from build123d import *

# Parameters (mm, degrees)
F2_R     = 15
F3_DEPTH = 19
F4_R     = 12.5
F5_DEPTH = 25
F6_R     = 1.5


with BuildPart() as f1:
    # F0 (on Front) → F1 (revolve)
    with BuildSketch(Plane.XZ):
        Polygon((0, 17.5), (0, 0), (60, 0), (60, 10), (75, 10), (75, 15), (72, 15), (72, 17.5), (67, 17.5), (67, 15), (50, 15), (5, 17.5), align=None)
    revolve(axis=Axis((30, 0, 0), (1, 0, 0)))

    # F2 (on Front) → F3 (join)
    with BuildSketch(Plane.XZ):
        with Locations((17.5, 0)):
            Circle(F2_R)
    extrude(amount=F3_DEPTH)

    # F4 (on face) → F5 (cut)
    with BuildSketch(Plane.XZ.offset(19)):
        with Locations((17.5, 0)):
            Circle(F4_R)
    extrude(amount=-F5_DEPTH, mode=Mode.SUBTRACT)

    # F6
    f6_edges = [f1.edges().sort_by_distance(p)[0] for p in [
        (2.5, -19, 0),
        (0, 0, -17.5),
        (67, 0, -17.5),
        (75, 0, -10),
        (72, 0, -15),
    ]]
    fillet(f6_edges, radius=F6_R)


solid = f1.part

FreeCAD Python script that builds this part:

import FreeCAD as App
import Part
import Sketcher

V = App.Vector
Q = App.Units.Quantity


def edges_at(feature, points):
    """Names of the edges that pass closest to the given points."""
    edges = feature.Shape.Edges
    near = lambda p: min(range(len(edges)), key=lambda i: edges[i].distToShape(Part.Vertex(*p))[0])
    return sorted({f"Edge{near(p) + 1}" for p in points})


def add_polygon(sketch, points):
    """Adds a closed chain of lines whose ends are joined by coincident constraints."""
    first, n = sketch.GeometryCount, len(points)
    for a, b in zip(points, points[1:] + points[:1]):
        sketch.addGeometry(Part.LineSegment(App.Vector(*a, 0), App.Vector(*b, 0)), False)
    for i in range(n):
        sketch.addConstraint(Sketcher.Constraint("Coincident", first + i, 2, first + (i + 1) % n, 1))

doc = App.newDocument("Part")
params = doc.addObject("Spreadsheet::Sheet", "Params")
for row, (alias, value) in enumerate([
    ("sketch1_width", "60 mm"),
    ("sketch1_width2", "15 mm"),
    ("sketch1_width3", "3 mm"),
    ("sketch1_width4", "5 mm"),
    ("sketch1_width5", "17 mm"),
    ("revolution_angle", "360 deg"),
    ("sketch2_diameter", "30 mm"),
    ("pad1_length", "19 mm"),
    ("sketch3_diameter", "25 mm"),
    ("pocket1_length", "25 mm"),
    ("fillet_radius", "1.5 mm"),
], start=1):
    params.set(f"A{row}", alias)
    params.set(f"B{row}", "=" + value)
    params.setAlias(f"B{row}", alias)

body = doc.addObject("PartDesign::Body", "Body")

# Sketch on XZ plane
sketch1 = doc.addObject("Sketcher::SketchObject", "Sketch")
body.addObject(sketch1)
sketch1.AttachmentSupport = (doc.XZ_Plane, [""])
sketch1.MapMode = "FlatFace"
add_polygon(sketch1, [(0, 17.5), (0, 0), (60, 0), (60, 10), (75, 10), (75, 15), (72, 15), (72, 17.5), (67, 17.5), (67, 15), (50, 15), (5, 17.5)])  # lines 0-11
sketch1.addConstraint([
    Sketcher.Constraint("Vertical", 0),
    Sketcher.Constraint("Horizontal", 1),
    Sketcher.Constraint("Vertical", 2),
    Sketcher.Constraint("Horizontal", 3),
    Sketcher.Constraint("Vertical", 4),
    Sketcher.Constraint("Horizontal", 5),
    Sketcher.Constraint("Vertical", 6),
    Sketcher.Constraint("Horizontal", 7),
    Sketcher.Constraint("Vertical", 8),
    Sketcher.Constraint("Horizontal", 9),
    Sketcher.Constraint("Horizontal", 11),
    Sketcher.Constraint("Coincident", 0, 2, -1, 1),
    Sketcher.Constraint("Horizontal", 5, 2, 8, 2),
    Sketcher.Constraint("Horizontal", 7, 2, 10, 2),
    Sketcher.Constraint("Equal", 7, 11),
    Sketcher.Constraint("Equal", 11, 4),
    Sketcher.Constraint("DistanceX", 1, 1, 1, 2, Q("60 mm")),
    Sketcher.Constraint("DistanceX", 3, 1, 3, 2, Q("15 mm")),
    Sketcher.Constraint("DistanceX", 5, 2, 5, 1, Q("3 mm")),
    Sketcher.Constraint("DistanceX", 7, 2, 7, 1, Q("5 mm")),
    Sketcher.Constraint("DistanceX", 9, 2, 9, 1, Q("17 mm")),
    Sketcher.Constraint("DistanceY", 2, 1, 2, 2, Q("10 mm")),
    Sketcher.Constraint("DistanceY", 0, 2, 0, 1, Q("17.5 mm")),
])
sketch1.setExpression("Constraints[28]", "Params.sketch1_width")
sketch1.setExpression("Constraints[29]", "Params.sketch1_width2")
sketch1.setExpression("Constraints[30]", "Params.sketch1_width3")
sketch1.setExpression("Constraints[31]", "Params.sketch1_width4")
sketch1.setExpression("Constraints[32]", "Params.sketch1_width5")
revolution = doc.addObject("PartDesign::Revolution", "Revolution")
body.addObject(revolution)
revolution.Profile = sketch1
revolution.ReferenceAxis = (sketch1, ["H_Axis"])
revolution.setExpression("Angle", "Params.revolution_angle")

# Sketch on XZ plane
sketch2 = doc.addObject("Sketcher::SketchObject", "Sketch001")
body.addObject(sketch2)
sketch2.AttachmentSupport = (doc.XZ_Plane, [""])
sketch2.MapMode = "FlatFace"
sketch2.addGeometry(Part.Circle(V(18, 0, 0), V(0, 0, 1), 15), False)
sketch2.addConstraint([
    Sketcher.Constraint("PointOnObject", 0, 3, -1),
    Sketcher.Constraint("Diameter", 0, Q("30 mm")),
    Sketcher.Constraint("DistanceX", -1, 1, 0, 3, Q("17.5 mm")),
])
sketch2.setExpression("Constraints[1]", "Params.sketch2_diameter")
pad1 = doc.addObject("PartDesign::Pad", "Pad")
body.addObject(pad1)
pad1.Profile = sketch2
pad1.setExpression("Length", "Params.pad1_length")

# Sketch on XZ plane
sketch3 = doc.addObject("Sketcher::SketchObject", "Sketch002")
body.addObject(sketch3)
sketch3.AttachmentSupport = (doc.XZ_Plane, [""])
sketch3.MapMode = "FlatFace"
sketch3.AttachmentOffset = App.Placement(V(0, 0, 19), App.Rotation())
sketch3.addGeometry(Part.Circle(V(18, 0, 0), V(0, 0, 1), 12), False)
sketch3.addConstraint([
    Sketcher.Constraint("PointOnObject", 0, 3, -1),
    Sketcher.Constraint("Diameter", 0, Q("25 mm")),
    Sketcher.Constraint("DistanceX", -1, 1, 0, 3, Q("17.5 mm")),
])
sketch3.setExpression("Constraints[1]", "Params.sketch3_diameter")
pocket1 = doc.addObject("PartDesign::Pocket", "Pocket")
body.addObject(pocket1)
pocket1.Profile = sketch3
pocket1.setExpression("Length", "Params.pocket1_length")
doc.recompute()

fillet = doc.addObject("PartDesign::Fillet", "Fillet")
body.addObject(fillet)
fillet.Base = (pocket1, edges_at(pocket1, [
    (2.5, -19, 0),
    (0, 0, -17.5),
    (67, 0, -17.5),
    (75, 0, -10),
    (72, 0, -15),
]))
fillet.setExpression("Radius", "Params.fillet_radius")

doc.recompute()
